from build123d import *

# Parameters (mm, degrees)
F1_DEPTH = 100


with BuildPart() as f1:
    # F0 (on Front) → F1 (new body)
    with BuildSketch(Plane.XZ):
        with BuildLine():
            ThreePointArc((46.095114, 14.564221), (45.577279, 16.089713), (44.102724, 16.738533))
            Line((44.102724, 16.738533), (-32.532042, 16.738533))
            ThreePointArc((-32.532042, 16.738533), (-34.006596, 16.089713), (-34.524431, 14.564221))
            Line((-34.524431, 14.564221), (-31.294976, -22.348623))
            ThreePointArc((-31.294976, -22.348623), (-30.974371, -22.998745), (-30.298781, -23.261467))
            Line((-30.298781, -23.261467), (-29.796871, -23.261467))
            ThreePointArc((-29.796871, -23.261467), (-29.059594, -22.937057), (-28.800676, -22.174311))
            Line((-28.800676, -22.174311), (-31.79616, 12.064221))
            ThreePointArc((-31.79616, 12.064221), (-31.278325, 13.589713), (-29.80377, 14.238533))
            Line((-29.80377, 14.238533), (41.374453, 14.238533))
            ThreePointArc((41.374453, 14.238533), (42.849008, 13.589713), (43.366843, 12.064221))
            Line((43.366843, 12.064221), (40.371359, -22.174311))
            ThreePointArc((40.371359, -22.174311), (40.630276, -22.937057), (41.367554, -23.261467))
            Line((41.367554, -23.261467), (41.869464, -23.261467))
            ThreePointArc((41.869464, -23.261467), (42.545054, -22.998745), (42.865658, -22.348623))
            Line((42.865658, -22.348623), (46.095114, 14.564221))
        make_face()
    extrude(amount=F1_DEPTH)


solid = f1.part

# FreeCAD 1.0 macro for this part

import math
import FreeCAD as App
import Part
import Sketcher
from FreeCAD import Vector
Q = App.Units.Quantity

doc = App.newDocument("Part")
body = doc.addObject("PartDesign::Body", "Body")

# Sketch on XZ plane
sketch1 = body.newObject("Sketcher::SketchObject", "Sketch")
sketch1.AttachmentSupport = (doc.getObject("XZ_Plane"), [""])
sketch1.MapMode = "FlatFace"
sketch1.addGeometry([
    Part.ArcOfCircle(Part.Circle(Vector(44.102723, 14.738532, 0), Vector(0, 0, 1), 2.000001), math.radians(-4.999981), math.radians(89.999985)),  # 0
    Part.LineSegment(Vector(44.102724, 16.738533, 0), Vector(-32.532042, 16.738533, 0)),  # 1
    Part.ArcOfCircle(Part.Circle(Vector(-32.53204, 14.738532, 0), Vector(0, 0, 1), 2.000001), math.radians(90.000044), math.radians(184.999981)),  # 2
    Part.LineSegment(Vector(-34.524431, 14.564221, 0), Vector(-31.294976, -22.348623, 0)),  # 3
    Part.ArcOfCircle(Part.Circle(Vector(-30.298782, -22.261467, 0), Vector(0, 0, 1), 1), math.radians(-175.000004), math.radians(-89.999962)),  # 4
    Part.LineSegment(Vector(-30.298781, -23.261467, 0), Vector(-29.796871, -23.261467, 0)),  # 5
    Part.ArcOfCircle(Part.Circle(Vector(-29.796872, -22.261466, 0), Vector(0, 0, 1), 1.000001), math.radians(-89.999937), math.radians(4.999933)),  # 6
    Part.LineSegment(Vector(-28.800676, -22.174311, 0), Vector(-31.79616, 12.064221, 0)),  # 7
    Part.ArcOfCircle(Part.Circle(Vector(-29.803769, 12.238532, 0), Vector(0, 0, 1), 2.000001), math.radians(90.000015), math.radians(184.999981)),  # 8
    Part.LineSegment(Vector(-29.80377, 14.238533, 0), Vector(41.374453, 14.238533, 0)),  # 9
    Part.ArcOfCircle(Part.Circle(Vector(41.374452, 12.238532, 0), Vector(0, 0, 1), 2.000001), math.radians(-4.999981), math.radians(89.999985)),  # 10
    Part.LineSegment(Vector(43.366843, 12.064221, 0), Vector(40.371359, -22.174311, 0)),  # 11
    Part.ArcOfCircle(Part.Circle(Vector(41.367553, -22.261467, 0), Vector(0, 0, 1), 1), math.radians(174.999971), math.radians(270.000033)),  # 12
    Part.LineSegment(Vector(41.367554, -23.261467, 0), Vector(41.869464, -23.261467, 0)),  # 13
    Part.ArcOfCircle(Part.Circle(Vector(41.869465, -22.261469, 0), Vector(0, 0, 1), 0.999998), math.radians(-90.00008), math.radians(-4.999896)),  # 14
    Part.LineSegment(Vector(42.865658, -22.348623, 0), Vector(46.095114, 14.564221, 0)),  # 15
], False)
sketch1.addConstraint([
    Sketcher.Constraint("Tangent", 0, 2, 1, 1),
    Sketcher.Constraint("Tangent", 1, 2, 2, 1),
    Sketcher.Constraint("Tangent", 2, 2, 3, 1),
    Sketcher.Constraint("Tangent", 3, 2, 4, 1),
    Sketcher.Constraint("Tangent", 4, 2, 5, 1),
    Sketcher.Constraint("Tangent", 5, 2, 6, 1),
    Sketcher.Constraint("Tangent", 6, 2, 7, 1),
    Sketcher.Constraint("Tangent", 7, 2, 8, 2),
    Sketcher.Constraint("Tangent", 8, 1, 9, 1),
    Sketcher.Constraint("Tangent", 9, 2, 10, 2),
    Sketcher.Constraint("Tangent", 10, 1, 11, 1),
    Sketcher.Constraint("Tangent", 11, 2, 12, 1),
    Sketcher.Constraint("Tangent", 12, 2, 13, 1),
    Sketcher.Constraint("Tangent", 13, 2, 14, 1),
    Sketcher.Constraint("Tangent", 14, 2, 15, 1),
    Sketcher.Constraint("Tangent", 15, 2, 0, 1),
    Sketcher.Constraint("Horizontal", 1),
    Sketcher.Constraint("Horizontal", 5),
    Sketcher.Constraint("Horizontal", 9),
    Sketcher.Constraint("Horizontal", 13),
    Sketcher.Constraint("Equal", 0, 2),
    Sketcher.Constraint("Equal", 4, 6),
    Sketcher.Constraint("Equal", 2, 8),
    Sketcher.Constraint("Equal", 8, 10),
    Sketcher.Constraint("Equal", 6, 12),
    Sketcher.Constraint("Equal", 4, 14),
    Sketcher.Constraint("Parallel", 3, 7),
    Sketcher.Constraint("Parallel", 11, 15),
    Sketcher.Constraint("Horizontal", 6, 3, 12, 3),
    Sketcher.Constraint("Horizontal", 7, 2, 10, 1),
    Sketcher.Constraint("Equal", 5, 13),
    Sketcher.Constraint("Radius", 0, Q("2.000001 mm")),
    Sketcher.Constraint("Radius", 4, Q("1 mm")),
    Sketcher.Constraint("Angle", 3, Q("-85.000001 deg")),
    Sketcher.Constraint("DistanceY", 4, 3, 2, 3, Q("36.999999 mm")),
    Sketcher.Constraint("DistanceY", 8, 3, 2, 3, Q("2.5 mm")),
    Sketcher.Constraint("DistanceX", 5, 1, 5, 2, Q("0.50191 mm")),
    Sketcher.Constraint("DistanceX", 1, 2, 1, 1, Q("76.634766 mm")),
    Sketcher.Constraint("DistanceY", -1, 1, 0, 3, Q("14.738532 mm")),
    Sketcher.Constraint("DistanceX", 2, 3, -1, 1, Q("32.53204 mm")),
])
pad1 = body.newObject("PartDesign::Pad", "Pad")
pad1.Profile = sketch1
pad1.Length = 100

doc.recompute()
